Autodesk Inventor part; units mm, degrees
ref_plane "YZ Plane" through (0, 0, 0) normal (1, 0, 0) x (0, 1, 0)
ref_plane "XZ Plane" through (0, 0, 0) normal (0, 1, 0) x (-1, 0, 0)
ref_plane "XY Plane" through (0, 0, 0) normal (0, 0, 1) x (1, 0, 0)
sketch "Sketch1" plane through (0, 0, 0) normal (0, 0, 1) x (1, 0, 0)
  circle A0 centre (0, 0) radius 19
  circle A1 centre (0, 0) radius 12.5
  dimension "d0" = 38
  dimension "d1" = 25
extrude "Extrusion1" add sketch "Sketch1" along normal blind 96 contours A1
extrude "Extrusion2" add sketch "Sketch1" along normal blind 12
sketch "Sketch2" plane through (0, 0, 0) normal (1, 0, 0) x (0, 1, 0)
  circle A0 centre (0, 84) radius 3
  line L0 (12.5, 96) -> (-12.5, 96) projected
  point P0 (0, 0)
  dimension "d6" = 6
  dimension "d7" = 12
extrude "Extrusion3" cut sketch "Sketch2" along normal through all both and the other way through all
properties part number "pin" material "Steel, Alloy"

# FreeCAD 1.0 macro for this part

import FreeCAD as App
import Part
import Sketcher
from FreeCAD import Vector
Q = App.Units.Quantity

doc = App.newDocument("Part")
body = doc.addObject("PartDesign::Body", "Body")

# Sketch on XY plane
sketch1 = body.newObject("Sketcher::SketchObject", "Sketch")
sketch1.AttachmentSupport = (doc.getObject("XY_Plane"), [""])
sketch1.MapMode = "FlatFace"
sketch1.addGeometry(Part.Circle(Vector(0, 0, 0), Vector(0, 0, 1), 12), False)
sketch1.addConstraint(Sketcher.Constraint("Coincident", 0, 3, -1, 1))
sketch1.addConstraint(Sketcher.Constraint("Diameter", 0, Q("25 mm")))
pad1 = body.newObject("PartDesign::Pad", "Pad")
pad1.Profile = sketch1
pad1.Length = 96

# Sketch on XY plane
sketch2 = body.newObject("Sketcher::SketchObject", "Sketch001")
sketch2.AttachmentSupport = (doc.getObject("XY_Plane"), [""])
sketch2.MapMode = "FlatFace"
sketch2.addGeometry(Part.Circle(Vector(0, 0, 0), Vector(0, 0, 1), 19), False)
sketch2.addGeometry(Part.Circle(Vector(0, 0, 0), Vector(0, 0, 1), 12), False)
sketch2.addConstraint(Sketcher.Constraint("Coincident", 0, 3, -1, 1))
sketch2.addConstraint(Sketcher.Constraint("Coincident", 1, 3, -1, 1))
sketch2.addConstraint(Sketcher.Constraint("Diameter", 0, Q("38 mm")))
sketch2.addConstraint(Sketcher.Constraint("Diameter", 1, Q("25 mm")))
pad2 = body.newObject("PartDesign::Pad", "Pad001")
pad2.Profile = sketch2
pad2.Length = 12

# Sketch on YZ plane
sketch3 = body.newObject("Sketcher::SketchObject", "Sketch002")
sketch3.AttachmentSupport = (doc.getObject("YZ_Plane"), [""])
sketch3.MapMode = "FlatFace"
sketch3.addGeometry(Part.Circle(Vector(0, 84, 0), Vector(0, 0, 1), 3), False)
sketch3.addConstraint(Sketcher.Constraint("PointOnObject", 0, 3, -2))
sketch3.addConstraint(Sketcher.Constraint("Diameter", 0, Q("6 mm")))
sketch3.addConstraint(Sketcher.Constraint("DistanceY", -1, 1, 0, 3, Q("84 mm")))
pocket1 = body.newObject("PartDesign::Pocket", "Pocket")
pocket1.Profile = sketch3
pocket1.Type = "ThroughAll"
pocket1.Midplane = True

doc.recompute()
